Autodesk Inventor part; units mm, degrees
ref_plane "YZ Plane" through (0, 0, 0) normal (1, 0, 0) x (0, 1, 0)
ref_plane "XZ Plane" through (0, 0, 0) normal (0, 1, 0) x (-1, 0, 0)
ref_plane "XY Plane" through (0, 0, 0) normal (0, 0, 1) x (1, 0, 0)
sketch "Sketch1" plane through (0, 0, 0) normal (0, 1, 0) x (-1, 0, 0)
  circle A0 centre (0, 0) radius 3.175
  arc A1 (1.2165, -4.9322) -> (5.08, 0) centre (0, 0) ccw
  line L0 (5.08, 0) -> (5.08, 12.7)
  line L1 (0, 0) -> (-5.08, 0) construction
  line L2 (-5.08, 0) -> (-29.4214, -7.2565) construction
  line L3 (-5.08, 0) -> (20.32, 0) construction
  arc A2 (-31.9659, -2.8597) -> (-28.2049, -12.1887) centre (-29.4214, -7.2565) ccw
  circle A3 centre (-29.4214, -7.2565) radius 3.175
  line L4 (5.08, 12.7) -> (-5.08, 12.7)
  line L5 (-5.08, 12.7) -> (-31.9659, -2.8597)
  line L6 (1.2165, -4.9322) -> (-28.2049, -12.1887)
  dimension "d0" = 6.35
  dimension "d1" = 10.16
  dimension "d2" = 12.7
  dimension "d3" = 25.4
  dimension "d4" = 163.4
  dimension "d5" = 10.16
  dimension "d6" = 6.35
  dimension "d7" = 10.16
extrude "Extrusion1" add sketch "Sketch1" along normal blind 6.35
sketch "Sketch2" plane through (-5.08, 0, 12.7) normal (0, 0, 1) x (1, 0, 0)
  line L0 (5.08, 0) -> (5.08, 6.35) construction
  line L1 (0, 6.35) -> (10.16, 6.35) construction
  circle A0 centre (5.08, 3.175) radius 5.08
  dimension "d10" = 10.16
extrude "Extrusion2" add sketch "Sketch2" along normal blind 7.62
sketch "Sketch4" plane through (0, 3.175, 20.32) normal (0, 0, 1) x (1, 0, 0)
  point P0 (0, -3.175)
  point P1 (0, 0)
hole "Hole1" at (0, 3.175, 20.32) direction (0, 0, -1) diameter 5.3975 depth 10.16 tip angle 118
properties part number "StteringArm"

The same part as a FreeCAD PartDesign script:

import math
import FreeCAD as App
import Part
import Sketcher

V = App.Vector
Q = App.Units.Quantity

doc = App.newDocument("Part")
body = doc.addObject("PartDesign::Body", "Body")

# Sketch on XZ plane
sketch1 = doc.addObject("Sketcher::SketchObject", "Sketch")
body.addObject(sketch1)
sketch1.AttachmentSupport = (doc.XZ_Plane, [""])
sketch1.MapMode = "FlatFace"
sketch1.addGeometry([
    Part.LineSegment(V(28.2, -12.2, 0), V(-1.2, -4.9, 0)),  # 0
    Part.ArcOfCircle(Part.Circle(V(0, 0, 0), V(0, 0, 1), 5.1), math.radians(180), math.radians(256)),  # 1
    Part.LineSegment(V(-5.1, 0, 0), V(-5.1, 12.7, 0)),  # 2
    Part.LineSegment(V(-5.1, 12.7, 0), V(5.1, 12.7, 0)),  # 3
    Part.LineSegment(V(5.1, 12.7, 0), V(32, -2.9, 0)),  # 4
    Part.ArcOfCircle(Part.Circle(V(29.4, -7.3, 0), V(0, 0, 1), 5.1), math.radians(-104), math.radians(60)),  # 5
    Part.Circle(V(29.4, -7.3, 0), V(0, 0, 1), 3.2),  # 6
    Part.Circle(V(0, 0, 0), V(0, 0, 1), 3.2),  # 7
], False)
sketch1.addConstraint([
    Sketcher.Constraint("Tangent", 0, 2, 1, 2),
    Sketcher.Constraint("Tangent", 1, 1, 2, 1),
    Sketcher.Constraint("Coincident", 2, 2, 3, 1),
    Sketcher.Constraint("Coincident", 3, 2, 4, 1),
    Sketcher.Constraint("Tangent", 4, 2, 5, 2),
    Sketcher.Constraint("Tangent", 5, 1, 0, 1),
    Sketcher.Constraint("Vertical", 2),
    Sketcher.Constraint("Horizontal", 3),
    Sketcher.Constraint("Coincident", 1, 3, -1, 1),
    Sketcher.Constraint("Coincident", 7, 3, -1, 1),
    Sketcher.Constraint("Coincident", 6, 3, 5, 3),
    Sketcher.Constraint("Equal", 1, 5),
    Sketcher.Constraint("Equal", 6, 7),
    Sketcher.Constraint("Radius", 1, Q("0.2 in")),
    Sketcher.Constraint("Diameter", 6, Q("0.25 in")),
    Sketcher.Constraint("DistanceX", 3, 1, 3, 2, Q("0.4 in")),
    Sketcher.Constraint("DistanceY", 2, 1, 2, 2, Q("0.5 in")),
    Sketcher.Constraint("Angle", 4, Q("-30.0593 deg")),
    Sketcher.Constraint("DistanceY", 5, 3, -1, 1, Q("0.2857 in")),
])
pad1 = doc.addObject("PartDesign::Pad", "Pad")
body.addObject(pad1)
pad1.Profile = sketch1
pad1.Length = Q("0.25 in")
pad1.Reversed = True

# Sketch on XY plane
sketch2 = doc.addObject("Sketcher::SketchObject", "Sketch001")
body.addObject(sketch2)
sketch2.AttachmentSupport = (doc.XY_Plane, [""])
sketch2.MapMode = "FlatFace"
sketch2.AttachmentOffset = App.Placement(V(0, 0, 0.5 * 25.4), App.Rotation())
sketch2.addGeometry(Part.Circle(V(0, 3, 0), V(0, 0, 1), 5), False)
sketch2.addConstraint([
    Sketcher.Constraint("PointOnObject", 0, 3, -2),
    Sketcher.Constraint("Diameter", 0, Q("0.4 in")),
    Sketcher.Constraint("DistanceY", -1, 1, 0, 3, Q("0.125 in")),
])
pad2 = doc.addObject("PartDesign::Pad", "Pad001")
body.addObject(pad2)
pad2.Profile = sketch2
pad2.Length = Q("0.3 in")

# Sketch on XY plane
sketch3 = doc.addObject("Sketcher::SketchObject", "Sketch002")
body.addObject(sketch3)
sketch3.AttachmentSupport = (doc.XY_Plane, [""])
sketch3.MapMode = "FlatFace"
sketch3.AttachmentOffset = App.Placement(V(0, 0, 0.8 * 25.4), App.Rotation())
sketch3.addGeometry(Part.Circle(V(0, 3.2, 0), V(0, 0, 1), 2.7), False)
sketch3.addConstraint([
    Sketcher.Constraint("PointOnObject", 0, 3, -2),
    Sketcher.Constraint("Diameter", 0, Q("0.2125 in")),
    Sketcher.Constraint("DistanceY", -1, 1, 0, 3, Q("0.125 in")),
])
doc.recompute()
hole = doc.addObject("PartDesign::Hole", "Hole")
body.addObject(hole)
hole.Profile = sketch3
hole.ThreadType = "None"
hole.Diameter = Q("0.2125 in")
hole.DepthType = "Dimension"
hole.Depth = Q("0.4 in")
hole.DrillPoint = "Angled"
hole.DrillPointAngle = 118

doc.recompute()
